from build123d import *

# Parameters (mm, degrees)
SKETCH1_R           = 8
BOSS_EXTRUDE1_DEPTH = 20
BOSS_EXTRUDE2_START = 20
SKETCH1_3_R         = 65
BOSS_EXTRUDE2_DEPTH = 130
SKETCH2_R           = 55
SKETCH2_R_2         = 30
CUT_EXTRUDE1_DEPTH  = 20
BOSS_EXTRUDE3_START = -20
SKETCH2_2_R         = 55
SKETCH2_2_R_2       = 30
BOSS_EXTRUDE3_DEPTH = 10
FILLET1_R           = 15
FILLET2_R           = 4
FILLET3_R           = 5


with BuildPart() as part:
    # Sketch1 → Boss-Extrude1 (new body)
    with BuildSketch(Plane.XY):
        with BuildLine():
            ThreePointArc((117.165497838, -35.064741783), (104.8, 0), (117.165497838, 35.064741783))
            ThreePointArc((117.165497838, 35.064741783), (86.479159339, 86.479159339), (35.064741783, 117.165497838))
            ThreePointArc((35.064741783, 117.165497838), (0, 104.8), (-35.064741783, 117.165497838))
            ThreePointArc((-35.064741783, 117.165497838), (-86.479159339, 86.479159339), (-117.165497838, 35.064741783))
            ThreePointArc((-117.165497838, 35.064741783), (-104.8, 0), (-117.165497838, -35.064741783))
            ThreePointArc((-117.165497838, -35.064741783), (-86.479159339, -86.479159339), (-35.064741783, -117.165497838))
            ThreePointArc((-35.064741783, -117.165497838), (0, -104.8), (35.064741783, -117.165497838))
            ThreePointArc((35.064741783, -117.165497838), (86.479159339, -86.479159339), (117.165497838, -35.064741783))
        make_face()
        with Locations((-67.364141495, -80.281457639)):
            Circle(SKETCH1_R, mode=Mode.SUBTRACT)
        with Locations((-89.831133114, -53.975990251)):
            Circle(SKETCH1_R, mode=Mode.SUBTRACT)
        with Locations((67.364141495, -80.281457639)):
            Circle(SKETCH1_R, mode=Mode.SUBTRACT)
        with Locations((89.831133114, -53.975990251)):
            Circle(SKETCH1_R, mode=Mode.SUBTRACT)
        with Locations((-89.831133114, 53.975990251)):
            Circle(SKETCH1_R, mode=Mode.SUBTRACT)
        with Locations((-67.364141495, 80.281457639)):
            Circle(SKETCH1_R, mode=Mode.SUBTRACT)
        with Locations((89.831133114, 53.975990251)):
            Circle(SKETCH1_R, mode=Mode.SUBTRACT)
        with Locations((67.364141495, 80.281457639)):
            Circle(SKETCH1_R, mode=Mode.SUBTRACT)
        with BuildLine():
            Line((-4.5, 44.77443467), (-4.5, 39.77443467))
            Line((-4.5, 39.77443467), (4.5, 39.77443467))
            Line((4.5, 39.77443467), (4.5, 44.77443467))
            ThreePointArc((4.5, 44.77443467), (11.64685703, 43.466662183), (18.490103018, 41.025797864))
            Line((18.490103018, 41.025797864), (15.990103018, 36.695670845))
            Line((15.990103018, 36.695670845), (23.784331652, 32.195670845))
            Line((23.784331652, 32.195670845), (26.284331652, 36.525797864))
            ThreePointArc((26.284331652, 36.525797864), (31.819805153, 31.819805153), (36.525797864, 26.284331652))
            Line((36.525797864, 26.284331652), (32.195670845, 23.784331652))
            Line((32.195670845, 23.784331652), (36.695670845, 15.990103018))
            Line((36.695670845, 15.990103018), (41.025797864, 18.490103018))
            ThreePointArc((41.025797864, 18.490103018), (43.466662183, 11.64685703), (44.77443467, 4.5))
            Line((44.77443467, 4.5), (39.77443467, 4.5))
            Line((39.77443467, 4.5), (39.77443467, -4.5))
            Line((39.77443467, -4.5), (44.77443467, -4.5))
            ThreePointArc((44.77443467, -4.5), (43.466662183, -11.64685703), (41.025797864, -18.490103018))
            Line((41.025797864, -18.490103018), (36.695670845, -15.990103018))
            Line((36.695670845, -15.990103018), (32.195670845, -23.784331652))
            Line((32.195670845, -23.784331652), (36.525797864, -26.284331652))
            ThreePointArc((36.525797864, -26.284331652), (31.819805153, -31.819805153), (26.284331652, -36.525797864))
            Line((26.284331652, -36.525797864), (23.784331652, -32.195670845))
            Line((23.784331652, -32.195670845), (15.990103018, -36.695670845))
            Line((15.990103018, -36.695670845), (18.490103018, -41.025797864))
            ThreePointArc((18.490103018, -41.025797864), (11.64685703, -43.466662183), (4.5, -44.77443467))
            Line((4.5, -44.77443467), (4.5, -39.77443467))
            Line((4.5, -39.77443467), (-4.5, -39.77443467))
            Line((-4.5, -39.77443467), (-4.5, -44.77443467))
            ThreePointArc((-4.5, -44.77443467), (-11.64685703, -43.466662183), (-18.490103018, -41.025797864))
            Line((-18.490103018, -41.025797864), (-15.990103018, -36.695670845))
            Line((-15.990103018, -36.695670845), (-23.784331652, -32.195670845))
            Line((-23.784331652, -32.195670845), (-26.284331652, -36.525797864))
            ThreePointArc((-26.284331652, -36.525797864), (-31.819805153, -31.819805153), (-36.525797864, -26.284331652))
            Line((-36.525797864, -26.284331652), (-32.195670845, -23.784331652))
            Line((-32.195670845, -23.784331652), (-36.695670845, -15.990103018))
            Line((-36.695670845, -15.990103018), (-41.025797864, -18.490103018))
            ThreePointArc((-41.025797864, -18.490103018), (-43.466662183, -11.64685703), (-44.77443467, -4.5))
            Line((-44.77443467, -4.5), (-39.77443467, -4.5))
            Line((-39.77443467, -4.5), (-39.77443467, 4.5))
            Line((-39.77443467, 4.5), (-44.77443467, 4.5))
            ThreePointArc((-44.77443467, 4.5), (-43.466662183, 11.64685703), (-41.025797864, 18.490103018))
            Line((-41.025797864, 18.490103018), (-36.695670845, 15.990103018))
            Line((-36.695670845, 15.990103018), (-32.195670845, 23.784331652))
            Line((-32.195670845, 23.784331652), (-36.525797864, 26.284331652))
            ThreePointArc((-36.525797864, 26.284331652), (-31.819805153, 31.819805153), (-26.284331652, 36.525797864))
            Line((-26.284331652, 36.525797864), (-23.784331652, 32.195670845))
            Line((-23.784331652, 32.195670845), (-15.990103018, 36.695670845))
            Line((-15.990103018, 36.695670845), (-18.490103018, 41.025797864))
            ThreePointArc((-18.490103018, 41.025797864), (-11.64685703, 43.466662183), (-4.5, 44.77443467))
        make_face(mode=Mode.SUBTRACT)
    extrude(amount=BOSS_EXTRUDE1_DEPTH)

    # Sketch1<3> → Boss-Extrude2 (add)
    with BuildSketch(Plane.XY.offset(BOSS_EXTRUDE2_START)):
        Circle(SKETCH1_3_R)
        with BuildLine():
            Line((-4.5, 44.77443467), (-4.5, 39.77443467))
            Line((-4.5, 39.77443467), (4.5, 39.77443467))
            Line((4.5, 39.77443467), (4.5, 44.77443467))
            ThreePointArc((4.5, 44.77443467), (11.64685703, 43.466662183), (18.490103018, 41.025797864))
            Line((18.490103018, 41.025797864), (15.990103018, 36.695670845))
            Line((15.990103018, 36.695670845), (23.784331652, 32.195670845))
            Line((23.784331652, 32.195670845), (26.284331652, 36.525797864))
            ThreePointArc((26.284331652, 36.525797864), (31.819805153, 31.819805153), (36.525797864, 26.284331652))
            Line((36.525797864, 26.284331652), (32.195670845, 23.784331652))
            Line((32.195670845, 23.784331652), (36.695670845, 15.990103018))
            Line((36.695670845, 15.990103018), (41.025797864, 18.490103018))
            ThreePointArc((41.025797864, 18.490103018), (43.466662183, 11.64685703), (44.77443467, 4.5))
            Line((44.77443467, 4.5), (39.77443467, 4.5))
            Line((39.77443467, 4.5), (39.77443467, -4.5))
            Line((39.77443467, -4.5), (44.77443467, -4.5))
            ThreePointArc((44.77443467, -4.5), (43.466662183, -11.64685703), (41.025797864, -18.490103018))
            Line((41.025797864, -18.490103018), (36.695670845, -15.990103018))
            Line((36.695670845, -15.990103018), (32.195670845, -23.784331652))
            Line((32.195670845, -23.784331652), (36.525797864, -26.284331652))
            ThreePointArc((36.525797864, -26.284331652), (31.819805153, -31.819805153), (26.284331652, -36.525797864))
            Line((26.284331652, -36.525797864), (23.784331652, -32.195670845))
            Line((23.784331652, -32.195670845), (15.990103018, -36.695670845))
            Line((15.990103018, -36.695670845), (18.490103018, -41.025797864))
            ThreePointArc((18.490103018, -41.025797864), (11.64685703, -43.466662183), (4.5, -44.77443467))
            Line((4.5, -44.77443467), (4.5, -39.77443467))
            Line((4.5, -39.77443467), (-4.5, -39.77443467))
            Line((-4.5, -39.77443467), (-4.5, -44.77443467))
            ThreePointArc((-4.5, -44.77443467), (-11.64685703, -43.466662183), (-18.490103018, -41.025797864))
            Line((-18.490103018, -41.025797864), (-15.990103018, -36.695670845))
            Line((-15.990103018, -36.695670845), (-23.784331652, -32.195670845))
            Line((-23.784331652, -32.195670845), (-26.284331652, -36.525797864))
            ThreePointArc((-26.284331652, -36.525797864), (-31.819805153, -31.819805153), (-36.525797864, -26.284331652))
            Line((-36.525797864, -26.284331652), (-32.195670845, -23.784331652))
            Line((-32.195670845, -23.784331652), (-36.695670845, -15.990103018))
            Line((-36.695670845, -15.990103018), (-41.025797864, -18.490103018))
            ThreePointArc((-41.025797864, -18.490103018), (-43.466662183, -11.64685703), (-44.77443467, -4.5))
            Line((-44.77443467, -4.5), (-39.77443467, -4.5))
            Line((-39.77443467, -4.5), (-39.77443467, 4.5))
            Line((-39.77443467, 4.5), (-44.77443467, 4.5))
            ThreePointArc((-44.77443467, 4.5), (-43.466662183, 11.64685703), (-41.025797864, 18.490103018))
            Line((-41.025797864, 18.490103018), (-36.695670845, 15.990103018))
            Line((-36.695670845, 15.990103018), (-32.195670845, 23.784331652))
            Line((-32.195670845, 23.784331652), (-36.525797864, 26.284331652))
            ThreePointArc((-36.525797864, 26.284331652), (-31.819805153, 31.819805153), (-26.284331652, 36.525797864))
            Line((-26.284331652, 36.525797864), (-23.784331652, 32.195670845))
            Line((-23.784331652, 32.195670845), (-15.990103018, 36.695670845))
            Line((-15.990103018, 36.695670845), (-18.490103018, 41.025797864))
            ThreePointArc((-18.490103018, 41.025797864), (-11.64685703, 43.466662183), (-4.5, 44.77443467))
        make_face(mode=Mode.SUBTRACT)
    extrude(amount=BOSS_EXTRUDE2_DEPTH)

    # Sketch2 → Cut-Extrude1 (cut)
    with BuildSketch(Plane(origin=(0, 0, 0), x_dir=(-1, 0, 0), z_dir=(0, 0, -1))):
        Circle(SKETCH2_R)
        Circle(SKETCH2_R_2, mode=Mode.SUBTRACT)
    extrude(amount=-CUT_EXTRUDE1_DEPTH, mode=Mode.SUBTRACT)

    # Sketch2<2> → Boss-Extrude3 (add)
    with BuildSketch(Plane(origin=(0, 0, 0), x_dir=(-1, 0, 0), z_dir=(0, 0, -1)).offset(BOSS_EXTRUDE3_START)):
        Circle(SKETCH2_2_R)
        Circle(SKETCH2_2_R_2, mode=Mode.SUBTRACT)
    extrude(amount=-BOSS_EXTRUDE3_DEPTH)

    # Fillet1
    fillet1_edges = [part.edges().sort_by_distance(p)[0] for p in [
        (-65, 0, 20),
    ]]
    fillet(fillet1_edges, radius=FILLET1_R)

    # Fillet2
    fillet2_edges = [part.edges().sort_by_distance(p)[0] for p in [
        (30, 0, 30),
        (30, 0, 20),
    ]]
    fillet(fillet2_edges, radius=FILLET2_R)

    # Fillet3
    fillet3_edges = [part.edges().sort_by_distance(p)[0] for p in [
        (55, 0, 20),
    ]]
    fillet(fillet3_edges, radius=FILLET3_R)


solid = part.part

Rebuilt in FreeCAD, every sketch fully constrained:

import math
import FreeCAD as App
import Part
import Sketcher

V = App.Vector
Q = App.Units.Quantity


def edges_at(feature, points):
    """Names of the edges that pass closest to the given points."""
    edges = feature.Shape.Edges
    near = lambda p: min(range(len(edges)), key=lambda i: edges[i].distToShape(Part.Vertex(*p))[0])
    return sorted({f"Edge{near(p) + 1}" for p in points})

doc = App.newDocument("Part")
params = doc.addObject("Spreadsheet::Sheet", "Params")
for row, (alias, value) in enumerate([
    ("sketch1_diameter", "16 mm"),
    ("sketch1_radius", "45 mm"),
    ("sketch1_radius2", "122.3 mm"),
    ("sketch1_width", "9 mm"),
    ("sketch1_width2", "5 mm"),
    ("pad1_length", "20 mm"),
    ("sketch2_diameter", "130 mm"),
    ("sketch2_radius", "45 mm"),
    ("sketch2_width", "9 mm"),
    ("sketch2_width2", "5 mm"),
    ("sketch2_length", "5 mm"),
    ("pad2_length", "130 mm"),
    ("sketch3_diameter", "110 mm"),
    ("sketch3_diameter2", "60 mm"),
    ("pocket1_length", "20 mm"),
    ("sketch4_diameter", "110 mm"),
    ("sketch4_diameter2", "60 mm"),
    ("pad3_length", "10 mm"),
    ("fillet_radius", "15 mm"),
    ("fillet2_radius", "4 mm"),
    ("fillet3_radius", "5 mm"),
], start=1):
    params.set(f"A{row}", alias)
    params.set(f"B{row}", "=" + value)
    params.setAlias(f"B{row}", alias)

body = doc.addObject("PartDesign::Body", "Body")

sketch1 = body.newObject("Sketcher::SketchObject", "Sketch")
sketch1.AttachmentSupport = (doc.getObject("XY_Plane"), [""])
sketch1.MapMode = "FlatFace"
sketch1.addGeometry(Part.ArcOfCircle(Part.Circle(V(161, 0, 0), V(0, 0, 1), 56), math.radians(141), math.radians(219)), False)
sketch1.addGeometry(Part.ArcOfCircle(Part.Circle(V(0, 0, 0), V(0, 0, 1), 122), math.radians(17), math.radians(73)), False)
sketch1.addGeometry(Part.ArcOfCircle(Part.Circle(V(0, 161, 0), V(0, 0, 1), 56), math.radians(-129), math.radians(-51)), False)
sketch1.addGeometry(Part.ArcOfCircle(Part.Circle(V(0, 0, 0), V(0, 0, 1), 122), math.radians(107), math.radians(163)), False)
sketch1.addGeometry(Part.ArcOfCircle(Part.Circle(V(-161, 0, 0), V(0, 0, 1), 56), math.radians(-39), math.radians(39)), False)
sketch1.addGeometry(Part.ArcOfCircle(Part.Circle(V(0, 0, 0), V(0, 0, 1), 122), math.radians(-163), math.radians(-107)), False)
sketch1.addGeometry(Part.ArcOfCircle(Part.Circle(V(0, -161, 0), V(0, 0, 1), 56), math.radians(51), math.radians(129)), False)
sketch1.addGeometry(Part.ArcOfCircle(Part.Circle(V(0, 0, 0), V(0, 0, 1), 122), math.radians(-73), math.radians(-17)), False)
sketch1.addGeometry(Part.Circle(V(-67, -80, 0), V(0, 0, 1), 8), False)
sketch1.addGeometry(Part.Circle(V(-90, -54, 0), V(0, 0, 1), 8), False)
sketch1.addGeometry(Part.Circle(V(67, -80, 0), V(0, 0, 1), 8), False)
sketch1.addGeometry(Part.Circle(V(90, -54, 0), V(0, 0, 1), 8), False)
sketch1.addGeometry(Part.ArcOfCircle(Part.Circle(V(0, 0, 0), V(0, 0, 1), 45), math.radians(95.74), math.radians(114.26)), False)
sketch1.addGeometry(Part.LineSegment(V(-4, 45, 0), V(-4, 40, 0)), False)
sketch1.addGeometry(Part.LineSegment(V(-4, 40, 0), V(4, 40, 0)), False)
sketch1.addGeometry(Part.LineSegment(V(4, 40, 0), V(4, 45, 0)), False)
sketch1.addGeometry(Part.ArcOfCircle(Part.Circle(V(0, 0, 0), V(0, 0, 1), 45), math.radians(65.74), math.radians(84.26)), False)
sketch1.addGeometry(Part.LineSegment(V(18, 41, 0), V(16, 37, 0)), False)
sketch1.addGeometry(Part.LineSegment(V(16, 37, 0), V(24, 32, 0)), False)
sketch1.addGeometry(Part.LineSegment(V(24, 32, 0), V(26, 37, 0)), False)
sketch1.addGeometry(Part.ArcOfCircle(Part.Circle(V(0, 0, 0), V(0, 0, 1), 45), math.radians(35.74), math.radians(54.26)), False)
sketch1.addGeometry(Part.LineSegment(V(37, 26, 0), V(32, 24, 0)), False)
sketch1.addGeometry(Part.LineSegment(V(32, 24, 0), V(37, 16, 0)), False)
sketch1.addGeometry(Part.LineSegment(V(37, 16, 0), V(41, 18, 0)), False)
sketch1.addGeometry(Part.ArcOfCircle(Part.Circle(V(0, 0, 0), V(0, 0, 1), 45), math.radians(5.74), math.radians(24.26)), False)
sketch1.addGeometry(Part.LineSegment(V(45, 4, 0), V(40, 4, 0)), False)
sketch1.addGeometry(Part.LineSegment(V(40, 4, 0), V(40, -4, 0)), False)
sketch1.addGeometry(Part.LineSegment(V(40, -4, 0), V(45, -4, 0)), False)
sketch1.addGeometry(Part.ArcOfCircle(Part.Circle(V(0, 0, 0), V(0, 0, 1), 45), math.radians(-24.26), math.radians(-5.74)), False)
sketch1.addGeometry(Part.LineSegment(V(41, -18, 0), V(37, -16, 0)), False)
sketch1.addGeometry(Part.LineSegment(V(37, -16, 0), V(32, -24, 0)), False)
sketch1.addGeometry(Part.LineSegment(V(32, -24, 0), V(37, -26, 0)), False)
sketch1.addGeometry(Part.ArcOfCircle(Part.Circle(V(0, 0, 0), V(0, 0, 1), 45), math.radians(-54.26), math.radians(-35.74)), False)
sketch1.addGeometry(Part.LineSegment(V(26, -37, 0), V(24, -32, 0)), False)
sketch1.addGeometry(Part.LineSegment(V(24, -32, 0), V(16, -37, 0)), False)
sketch1.addGeometry(Part.LineSegment(V(16, -37, 0), V(18, -41, 0)), False)
sketch1.addGeometry(Part.ArcOfCircle(Part.Circle(V(0, 0, 0), V(0, 0, 1), 45), math.radians(-84.26), math.radians(-65.74)), False)
sketch1.addGeometry(Part.LineSegment(V(4, -45, 0), V(4, -40, 0)), False)
sketch1.addGeometry(Part.LineSegment(V(4, -40, 0), V(-4, -40, 0)), False)
sketch1.addGeometry(Part.LineSegment(V(-4, -40, 0), V(-4, -45, 0)), False)
sketch1.addGeometry(Part.ArcOfCircle(Part.Circle(V(0, 0, 0), V(0, 0, 1), 45), math.radians(-114.26), math.radians(-95.74)), False)
sketch1.addGeometry(Part.LineSegment(V(-18, -41, 0), V(-16, -37, 0)), False)
sketch1.addGeometry(Part.LineSegment(V(-16, -37, 0), V(-24, -32, 0)), False)
sketch1.addGeometry(Part.LineSegment(V(-24, -32, 0), V(-26, -37, 0)), False)
sketch1.addGeometry(Part.ArcOfCircle(Part.Circle(V(0, 0, 0), V(0, 0, 1), 45), math.radians(-144.26), math.radians(-125.74)), False)
sketch1.addGeometry(Part.LineSegment(V(-37, -26, 0), V(-32, -24, 0)), False)
sketch1.addGeometry(Part.LineSegment(V(-32, -24, 0), V(-37, -16, 0)), False)
sketch1.addGeometry(Part.LineSegment(V(-37, -16, 0), V(-41, -18, 0)), False)
sketch1.addGeometry(Part.ArcOfCircle(Part.Circle(V(0, 0, 0), V(0, 0, 1), 45), math.radians(-174.26), math.radians(-155.74)), False)
sketch1.addGeometry(Part.LineSegment(V(-45, -4, 0), V(-40, -4, 0)), False)
sketch1.addGeometry(Part.LineSegment(V(-40, -4, 0), V(-40, 4, 0)), False)
sketch1.addGeometry(Part.LineSegment(V(-40, 4, 0), V(-45, 4, 0)), False)
sketch1.addGeometry(Part.ArcOfCircle(Part.Circle(V(0, 0, 0), V(0, 0, 1), 45), math.radians(155.74), math.radians(174.26)), False)
sketch1.addGeometry(Part.LineSegment(V(-41, 18, 0), V(-37, 16, 0)), False)
sketch1.addGeometry(Part.LineSegment(V(-37, 16, 0), V(-32, 24, 0)), False)
sketch1.addGeometry(Part.LineSegment(V(-32, 24, 0), V(-37, 26, 0)), False)
sketch1.addGeometry(Part.ArcOfCircle(Part.Circle(V(0, 0, 0), V(0, 0, 1), 45), math.radians(125.74), math.radians(144.26)), False)
sketch1.addGeometry(Part.LineSegment(V(-26, 37, 0), V(-24, 32, 0)), False)
sketch1.addGeometry(Part.LineSegment(V(-24, 32, 0), V(-16, 37, 0)), False)
sketch1.addGeometry(Part.LineSegment(V(-16, 37, 0), V(-18, 41, 0)), False)
sketch1.addGeometry(Part.Circle(V(-90, 54, 0), V(0, 0, 1), 8), False)
sketch1.addGeometry(Part.Circle(V(-67, 80, 0), V(0, 0, 1), 8), False)
sketch1.addGeometry(Part.Circle(V(90, 54, 0), V(0, 0, 1), 8), False)
sketch1.addGeometry(Part.Circle(V(67, 80, 0), V(0, 0, 1), 8), False)
sketch1.addConstraint(Sketcher.Constraint("Coincident", 0, 1, 1, 1))
sketch1.addConstraint(Sketcher.Constraint("Coincident", 1, 2, 2, 2))
sketch1.addConstraint(Sketcher.Constraint("Coincident", 2, 1, 3, 1))
sketch1.addConstraint(Sketcher.Constraint("Coincident", 3, 2, 4, 2))
sketch1.addConstraint(Sketcher.Constraint("Coincident", 4, 1, 5, 1))
sketch1.addConstraint(Sketcher.Constraint("Coincident", 5, 2, 6, 2))
sketch1.addConstraint(Sketcher.Constraint("Coincident", 6, 1, 7, 1))
sketch1.addConstraint(Sketcher.Constraint("Coincident", 7, 2, 0, 2))
sketch1.addConstraint(Sketcher.Constraint("Coincident", 12, 1, 13, 1))
sketch1.addConstraint(Sketcher.Constraint("Coincident", 13, 2, 14, 1))
sketch1.addConstraint(Sketcher.Constraint("Coincident", 14, 2, 15, 1))
sketch1.addConstraint(Sketcher.Constraint("Coincident", 15, 2, 16, 2))
sketch1.addConstraint(Sketcher.Constraint("Coincident", 16, 1, 17, 1))
sketch1.addConstraint(Sketcher.Constraint("Coincident", 17, 2, 18, 1))
sketch1.addConstraint(Sketcher.Constraint("Coincident", 18, 2, 19, 1))
sketch1.addConstraint(Sketcher.Constraint("Coincident", 19, 2, 20, 2))
sketch1.addConstraint(Sketcher.Constraint("Coincident", 20, 1, 21, 1))
sketch1.addConstraint(Sketcher.Constraint("Coincident", 21, 2, 22, 1))
sketch1.addConstraint(Sketcher.Constraint("Coincident", 22, 2, 23, 1))
sketch1.addConstraint(Sketcher.Constraint("Coincident", 23, 2, 24, 2))
sketch1.addConstraint(Sketcher.Constraint("Coincident", 24, 1, 25, 1))
sketch1.addConstraint(Sketcher.Constraint("Coincident", 25, 2, 26, 1))
sketch1.addConstraint(Sketcher.Constraint("Coincident", 26, 2, 27, 1))
sketch1.addConstraint(Sketcher.Constraint("Coincident", 27, 2, 28, 2))
sketch1.addConstraint(Sketcher.Constraint("Coincident", 28, 1, 29, 1))
sketch1.addConstraint(Sketcher.Constraint("Coincident", 29, 2, 30, 1))
sketch1.addConstraint(Sketcher.Constraint("Coincident", 30, 2, 31, 1))
sketch1.addConstraint(Sketcher.Constraint("Coincident", 31, 2, 32, 2))
sketch1.addConstraint(Sketcher.Constraint("Coincident", 32, 1, 33, 1))
sketch1.addConstraint(Sketcher.Constraint("Coincident", 33, 2, 34, 1))
sketch1.addConstraint(Sketcher.Constraint("Coincident", 34, 2, 35, 1))
sketch1.addConstraint(Sketcher.Constraint("Coincident", 35, 2, 36, 2))
sketch1.addConstraint(Sketcher.Constraint("Coincident", 36, 1, 37, 1))
sketch1.addConstraint(Sketcher.Constraint("Coincident", 37, 2, 38, 1))
sketch1.addConstraint(Sketcher.Constraint("Coincident", 38, 2, 39, 1))
sketch1.addConstraint(Sketcher.Constraint("Coincident", 39, 2, 40, 2))
sketch1.addConstraint(Sketcher.Constraint("Coincident", 40, 1, 41, 1))
sketch1.addConstraint(Sketcher.Constraint("Coincident", 41, 2, 42, 1))
sketch1.addConstraint(Sketcher.Constraint("Coincident", 42, 2, 43, 1))
sketch1.addConstraint(Sketcher.Constraint("Coincident", 43, 2, 44, 2))
sketch1.addConstraint(Sketcher.Constraint("Coincident", 44, 1, 45, 1))
sketch1.addConstraint(Sketcher.Constraint("Coincident", 45, 2, 46, 1))
sketch1.addConstraint(Sketcher.Constraint("Coincident", 46, 2, 47, 1))
sketch1.addConstraint(Sketcher.Constraint("Coincident", 47, 2, 48, 2))
sketch1.addConstraint(Sketcher.Constraint("Coincident", 48, 1, 49, 1))
sketch1.addConstraint(Sketcher.Constraint("Coincident", 49, 2, 50, 1))
sketch1.addConstraint(Sketcher.Constraint("Coincident", 50, 2, 51, 1))
sketch1.addConstraint(Sketcher.Constraint("Coincident", 51, 2, 52, 2))
sketch1.addConstraint(Sketcher.Constraint("Coincident", 52, 1, 53, 1))
sketch1.addConstraint(Sketcher.Constraint("Coincident", 53, 2, 54, 1))
sketch1.addConstraint(Sketcher.Constraint("Coincident", 54, 2, 55, 1))
sketch1.addConstraint(Sketcher.Constraint("Coincident", 55, 2, 56, 2))
sketch1.addConstraint(Sketcher.Constraint("Coincident", 56, 1, 57, 1))
sketch1.addConstraint(Sketcher.Constraint("Coincident", 57, 2, 58, 1))
sketch1.addConstraint(Sketcher.Constraint("Coincident", 58, 2, 59, 1))
sketch1.addConstraint(Sketcher.Constraint("Coincident", 59, 2, 12, 2))
sketch1.addConstraint(Sketcher.Constraint("Vertical", 13))
sketch1.addConstraint(Sketcher.Constraint("Horizontal", 14))
sketch1.addConstraint(Sketcher.Constraint("Vertical", 15))
sketch1.addConstraint(Sketcher.Constraint("Horizontal", 25))
sketch1.addConstraint(Sketcher.Constraint("Vertical", 26))
sketch1.addConstraint(Sketcher.Constraint("Horizontal", 27))
sketch1.addConstraint(Sketcher.Constraint("Vertical", 37))
sketch1.addConstraint(Sketcher.Constraint("Horizontal", 38))
sketch1.addConstraint(Sketcher.Constraint("Vertical", 39))
sketch1.addConstraint(Sketcher.Constraint("Horizontal", 49))
sketch1.addConstraint(Sketcher.Constraint("Vertical", 50))
sketch1.addConstraint(Sketcher.Constraint("Horizontal", 51))
sketch1.addConstraint(Sketcher.Constraint("Coincident", 1, 3, -1, 1))
sketch1.addConstraint(Sketcher.Constraint("Coincident", 3, 3, -1, 1))
sketch1.addConstraint(Sketcher.Constraint("Coincident", 5, 3, -1, 1))
sketch1.addConstraint(Sketcher.Constraint("Coincident", 7, 3, -1, 1))
sketch1.addConstraint(Sketcher.Constraint("Coincident", 12, 3, -1, 1))
sketch1.addConstraint(Sketcher.Constraint("Coincident", 16, 3, -1, 1))
sketch1.addConstraint(Sketcher.Constraint("Coincident", 20, 3, -1, 1))
sketch1.addConstraint(Sketcher.Constraint("Coincident", 24, 3, -1, 1))
sketch1.addConstraint(Sketcher.Constraint("Coincident", 28, 3, -1, 1))
sketch1.addConstraint(Sketcher.Constraint("Coincident", 32, 3, -1, 1))
sketch1.addConstraint(Sketcher.Constraint("Coincident", 36, 3, -1, 1))
sketch1.addConstraint(Sketcher.Constraint("Coincident", 40, 3, -1, 1))
sketch1.addConstraint(Sketcher.Constraint("Coincident", 44, 3, -1, 1))
sketch1.addConstraint(Sketcher.Constraint("Coincident", 48, 3, -1, 1))
sketch1.addConstraint(Sketcher.Constraint("Coincident", 52, 3, -1, 1))
sketch1.addConstraint(Sketcher.Constraint("Coincident", 56, 3, -1, 1))
sketch1.addConstraint(Sketcher.Constraint("Equal", 0, 2))
sketch1.addConstraint(Sketcher.Constraint("Equal", 1, 3))
sketch1.addConstraint(Sketcher.Constraint("Equal", 2, 4))
sketch1.addConstraint(Sketcher.Constraint("Equal", 3, 5))
sketch1.addConstraint(Sketcher.Constraint("Equal", 4, 6))
sketch1.addConstraint(Sketcher.Constraint("Equal", 5, 7))
sketch1.addConstraint(Sketcher.Constraint("Equal", 8, 9))
sketch1.addConstraint(Sketcher.Constraint("Equal", 9, 10))
sketch1.addConstraint(Sketcher.Constraint("Equal", 10, 11))
sketch1.addConstraint(Sketcher.Constraint("Equal", 12, 16))
sketch1.addConstraint(Sketcher.Constraint("Equal", 16, 20))
sketch1.addConstraint(Sketcher.Constraint("Equal", 20, 24))
sketch1.addConstraint(Sketcher.Constraint("Equal", 24, 28))
sketch1.addConstraint(Sketcher.Constraint("Equal", 28, 32))
sketch1.addConstraint(Sketcher.Constraint("Equal", 32, 36))
sketch1.addConstraint(Sketcher.Constraint("Equal", 36, 40))
sketch1.addConstraint(Sketcher.Constraint("Equal", 40, 44))
sketch1.addConstraint(Sketcher.Constraint("Equal", 44, 48))
sketch1.addConstraint(Sketcher.Constraint("Equal", 48, 52))
sketch1.addConstraint(Sketcher.Constraint("Equal", 52, 56))
sketch1.addConstraint(Sketcher.Constraint("Equal", 11, 60))
sketch1.addConstraint(Sketcher.Constraint("Equal", 60, 61))
sketch1.addConstraint(Sketcher.Constraint("Equal", 61, 62))
sketch1.addConstraint(Sketcher.Constraint("Equal", 62, 63))
sketch1.addConstraint(Sketcher.Constraint("Symmetric", 0, 3, 4, 3, -1, 1))
sketch1.addConstraint(Sketcher.Constraint("Symmetric", 2, 3, 6, 3, -1, 1))
sketch1.addConstraint(Sketcher.Constraint("Symmetric", 11, 3, 60, 3, -1, 1))
sketch1.addConstraint(Sketcher.Constraint("Symmetric", 10, 3, 61, 3, -1, 1))
sketch1.addConstraint(Sketcher.Constraint("Symmetric", 9, 3, 62, 3, -1, 1))
sketch1.addConstraint(Sketcher.Constraint("Symmetric", 8, 3, 63, 3, -1, 1))
sketch1.addConstraint(Sketcher.Constraint("Symmetric", 13, 2, 37, 2, -1, 1))
sketch1.addConstraint(Sketcher.Constraint("Symmetric", 17, 2, 41, 2, -1, 1))
sketch1.addConstraint(Sketcher.Constraint("Symmetric", 18, 2, 42, 2, -1, 1))
sketch1.addConstraint(Sketcher.Constraint("Symmetric", 21, 2, 45, 2, -1, 1))
sketch1.addConstraint(Sketcher.Constraint("Symmetric", 22, 2, 46, 2, -1, 1))
sketch1.addConstraint(Sketcher.Constraint("Symmetric", 25, 2, 49, 2, -1, 1))
sketch1.addConstraint(Sketcher.Constraint("Symmetric", 29, 2, 53, 2, -1, 1))
sketch1.addConstraint(Sketcher.Constraint("Symmetric", 30, 2, 54, 2, -1, 1))
sketch1.addConstraint(Sketcher.Constraint("Symmetric", 33, 2, 57, 2, -1, 1))
sketch1.addConstraint(Sketcher.Constraint("Symmetric", 34, 2, 58, 2, -1, 1))
sketch1.addConstraint(Sketcher.Constraint("Symmetric", 8, 3, 10, 3, -2))
sketch1.addConstraint(Sketcher.Constraint("Symmetric", 9, 3, 11, 3, -2))
sketch1.addConstraint(Sketcher.Constraint("Symmetric", 34, 2, 41, 2, -2))
sketch1.addConstraint(Sketcher.Constraint("Symmetric", 33, 2, 42, 2, -2))
sketch1.addConstraint(Sketcher.Constraint("Symmetric", 30, 2, 45, 2, -2))
sketch1.addConstraint(Sketcher.Constraint("Symmetric", 29, 2, 46, 2, -2))
sketch1.addConstraint(Sketcher.Constraint("PointOnObject", 0, 3, -1))
sketch1.addConstraint(Sketcher.Constraint("PointOnObject", 2, 3, -2))
sketch1.addConstraint(Sketcher.Constraint("Perpendicular", 17, 18))
sketch1.addConstraint(Sketcher.Constraint("Perpendicular", 18, 19))
sketch1.addConstraint(Sketcher.Constraint("Perpendicular", 21, 22))
sketch1.addConstraint(Sketcher.Constraint("Perpendicular", 22, 23))
sketch1.addConstraint(Sketcher.Constraint("Perpendicular", 19, 29))
sketch1.addConstraint(Sketcher.Constraint("Perpendicular", 29, 30))
sketch1.addConstraint(Sketcher.Constraint("Perpendicular", 30, 31))
sketch1.addConstraint(Sketcher.Constraint("Perpendicular", 23, 33))
sketch1.addConstraint(Sketcher.Constraint("Perpendicular", 34, 35))
sketch1.addConstraint(Sketcher.Constraint("Perpendicular", 31, 41))
sketch1.addConstraint(Sketcher.Constraint("Perpendicular", 42, 43))
sketch1.addConstraint(Sketcher.Constraint("Perpendicular", 35, 45))
sketch1.addConstraint(Sketcher.Constraint("Perpendicular", 46, 47))
sketch1.addConstraint(Sketcher.Constraint("Perpendicular", 43, 53))
sketch1.addConstraint(Sketcher.Constraint("Perpendicular", 54, 55))
sketch1.addConstraint(Sketcher.Constraint("Perpendicular", 47, 57))
sketch1.addConstraint(Sketcher.Constraint("Perpendicular", 58, 59))
sketch1.addConstraint(Sketcher.Constraint("Horizontal", 12, 1, 15, 2))
sketch1.addConstraint(Sketcher.Constraint("Horizontal", 36, 1, 39, 2))
sketch1.addConstraint(Sketcher.Constraint("Horizontal", 27, 2, 48, 1))
sketch1.addConstraint(Sketcher.Constraint("Horizontal", 25, 2, 50, 2))
sketch1.addConstraint(Sketcher.Constraint("Equal", 51, 13))
sketch1.addConstraint(Sketcher.Constraint("Equal", 38, 26))
sketch1.addConstraint(Sketcher.Constraint("Equal", 17, 19))
sketch1.addConstraint(Sketcher.Constraint("Equal", 19, 21))
sketch1.addConstraint(Sketcher.Constraint("Equal", 18, 22))
sketch1.addConstraint(Sketcher.Constraint("Equal", 21, 23))
sketch1.addConstraint(Sketcher.Constraint("Diameter", 8, 16.0))
sketch1.addConstraint(Sketcher.Constraint("Radius", 12, 45.0))
sketch1.addConstraint(Sketcher.Constraint("Radius", 1, 122.3))
sketch1.addConstraint(Sketcher.Constraint("DistanceX", 14, 1, 14, 2, 9.0))
sketch1.addConstraint(Sketcher.Constraint("DistanceX", 25, 2, 25, 1, 5.0))
sketch1.addConstraint(Sketcher.Constraint("Angle", 17, Q("-120 deg")))
sketch1.addConstraint(Sketcher.Constraint("Distance", 17, 5.0))
sketch1.addConstraint(Sketcher.Constraint("Distance", 18, 9.0))
sketch1.addConstraint(Sketcher.Constraint("Radius", 0, 55.899151))
sketch1.addConstraint(Sketcher.Constraint("DistanceX", -1, 1, 0, 3, 160.699151))
sketch1.addConstraint(Sketcher.Constraint("DistanceY", -1, 1, 2, 3, 160.699151))
sketch1.addConstraint(Sketcher.Constraint("DistanceX", 8, 3, -1, 1, 67.364141))
sketch1.addConstraint(Sketcher.Constraint("DistanceY", 9, 3, -1, 1, 53.97599))
sketch1.addConstraint(Sketcher.Constraint("DistanceY", 8, 3, -1, 1, 80.281458))
sketch1.addConstraint(Sketcher.Constraint("DistanceX", 9, 3, -1, 1, 89.831133))
sketch1.setExpression("Constraints[159]", "Params.sketch1_diameter")
sketch1.setExpression("Constraints[160]", "Params.sketch1_radius")
sketch1.setExpression("Constraints[161]", "Params.sketch1_radius2")
sketch1.setExpression("Constraints[162]", "Params.sketch1_width")
sketch1.setExpression("Constraints[163]", "Params.sketch1_width2")
pad1 = body.newObject("PartDesign::Pad", "Pad")
pad1.Profile = sketch1
pad1.setExpression("Length", "Params.pad1_length")

sketch2 = body.newObject("Sketcher::SketchObject", "Sketch001")
sketch2.AttachmentSupport = (doc.getObject("XY_Plane"), [""])
sketch2.MapMode = "FlatFace"
sketch2.AttachmentOffset = App.Placement(V(0, 0, 20), App.Rotation())
sketch2.addGeometry(Part.Circle(V(0, 0, 0), V(0, 0, 1), 65), False)
sketch2.addGeometry(Part.ArcOfCircle(Part.Circle(V(0, 0, 0), V(0, 0, 1), 45), math.radians(95.74), math.radians(114.26)), False)
sketch2.addGeometry(Part.LineSegment(V(-4, 45, 0), V(-4, 40, 0)), False)
sketch2.addGeometry(Part.LineSegment(V(-4, 40, 0), V(4, 40, 0)), False)
sketch2.addGeometry(Part.LineSegment(V(4, 40, 0), V(4, 45, 0)), False)
sketch2.addGeometry(Part.ArcOfCircle(Part.Circle(V(0, 0, 0), V(0, 0, 1), 45), math.radians(65.74), math.radians(84.26)), False)
sketch2.addGeometry(Part.LineSegment(V(18, 41, 0), V(16, 37, 0)), False)
sketch2.addGeometry(Part.LineSegment(V(16, 37, 0), V(24, 32, 0)), False)
sketch2.addGeometry(Part.LineSegment(V(24, 32, 0), V(26, 37, 0)), False)
sketch2.addGeometry(Part.ArcOfCircle(Part.Circle(V(0, 0, 0), V(0, 0, 1), 45), math.radians(35.74), math.radians(54.26)), False)
sketch2.addGeometry(Part.LineSegment(V(37, 26, 0), V(32, 24, 0)), False)
sketch2.addGeometry(Part.LineSegment(V(32, 24, 0), V(37, 16, 0)), False)
sketch2.addGeometry(Part.LineSegment(V(37, 16, 0), V(41, 18, 0)), False)
sketch2.addGeometry(Part.ArcOfCircle(Part.Circle(V(0, 0, 0), V(0, 0, 1), 45), math.radians(5.74), math.radians(24.26)), False)
sketch2.addGeometry(Part.LineSegment(V(45, 4, 0), V(40, 4, 0)), False)
sketch2.addGeometry(Part.LineSegment(V(40, 4, 0), V(40, -4, 0)), False)
sketch2.addGeometry(Part.LineSegment(V(40, -4, 0), V(45, -4, 0)), False)
sketch2.addGeometry(Part.ArcOfCircle(Part.Circle(V(0, 0, 0), V(0, 0, 1), 45), math.radians(-24.26), math.radians(-5.74)), False)
sketch2.addGeometry(Part.LineSegment(V(41, -18, 0), V(37, -16, 0)), False)
sketch2.addGeometry(Part.LineSegment(V(37, -16, 0), V(32, -24, 0)), False)
sketch2.addGeometry(Part.LineSegment(V(32, -24, 0), V(37, -26, 0)), False)
sketch2.addGeometry(Part.ArcOfCircle(Part.Circle(V(0, 0, 0), V(0, 0, 1), 45), math.radians(-54.26), math.radians(-35.74)), False)
sketch2.addGeometry(Part.LineSegment(V(26, -37, 0), V(24, -32, 0)), False)
sketch2.addGeometry(Part.LineSegment(V(24, -32, 0), V(16, -37, 0)), False)
sketch2.addGeometry(Part.LineSegment(V(16, -37, 0), V(18, -41, 0)), False)
sketch2.addGeometry(Part.ArcOfCircle(Part.Circle(V(0, 0, 0), V(0, 0, 1), 45), math.radians(-84.26), math.radians(-65.74)), False)
sketch2.addGeometry(Part.LineSegment(V(4, -45, 0), V(4, -40, 0)), False)
sketch2.addGeometry(Part.LineSegment(V(4, -40, 0), V(-4, -40, 0)), False)
sketch2.addGeometry(Part.LineSegment(V(-4, -40, 0), V(-4, -45, 0)), False)
sketch2.addGeometry(Part.ArcOfCircle(Part.Circle(V(0, 0, 0), V(0, 0, 1), 45), math.radians(-114.26), math.radians(-95.74)), False)
sketch2.addGeometry(Part.LineSegment(V(-18, -41, 0), V(-16, -37, 0)), False)
sketch2.addGeometry(Part.LineSegment(V(-16, -37, 0), V(-24, -32, 0)), False)
sketch2.addGeometry(Part.LineSegment(V(-24, -32, 0), V(-26, -37, 0)), False)
sketch2.addGeometry(Part.ArcOfCircle(Part.Circle(V(0, 0, 0), V(0, 0, 1), 45), math.radians(-144.26), math.radians(-125.74)), False)
sketch2.addGeometry(Part.LineSegment(V(-37, -26, 0), V(-32, -24, 0)), False)
sketch2.addGeometry(Part.LineSegment(V(-32, -24, 0), V(-37, -16, 0)), False)
sketch2.addGeometry(Part.LineSegment(V(-37, -16, 0), V(-41, -18, 0)), False)
sketch2.addGeometry(Part.ArcOfCircle(Part.Circle(V(0, 0, 0), V(0, 0, 1), 45), math.radians(-174.26), math.radians(-155.74)), False)
sketch2.addGeometry(Part.LineSegment(V(-45, -4, 0), V(-40, -4, 0)), False)
sketch2.addGeometry(Part.LineSegment(V(-40, -4, 0), V(-40, 4, 0)), False)
sketch2.addGeometry(Part.LineSegment(V(-40, 4, 0), V(-45, 4, 0)), False)
sketch2.addGeometry(Part.ArcOfCircle(Part.Circle(V(0, 0, 0), V(0, 0, 1), 45), math.radians(155.74), math.radians(174.26)), False)
sketch2.addGeometry(Part.LineSegment(V(-41, 18, 0), V(-37, 16, 0)), False)
sketch2.addGeometry(Part.LineSegment(V(-37, 16, 0), V(-32, 24, 0)), False)
sketch2.addGeometry(Part.LineSegment(V(-32, 24, 0), V(-37, 26, 0)), False)
sketch2.addGeometry(Part.ArcOfCircle(Part.Circle(V(0, 0, 0), V(0, 0, 1), 45), math.radians(125.74), math.radians(144.26)), False)
sketch2.addGeometry(Part.LineSegment(V(-26, 37, 0), V(-24, 32, 0)), False)
sketch2.addGeometry(Part.LineSegment(V(-24, 32, 0), V(-16, 37, 0)), False)
sketch2.addGeometry(Part.LineSegment(V(-16, 37, 0), V(-18, 41, 0)), False)
sketch2.addConstraint(Sketcher.Constraint("Coincident", 1, 1, 2, 1))
sketch2.addConstraint(Sketcher.Constraint("Coincident", 2, 2, 3, 1))
sketch2.addConstraint(Sketcher.Constraint("Coincident", 3, 2, 4, 1))
sketch2.addConstraint(Sketcher.Constraint("Coincident", 4, 2, 5, 2))
sketch2.addConstraint(Sketcher.Constraint("Coincident", 5, 1, 6, 1))
sketch2.addConstraint(Sketcher.Constraint("Coincident", 6, 2, 7, 1))
sketch2.addConstraint(Sketcher.Constraint("Coincident", 7, 2, 8, 1))
sketch2.addConstraint(Sketcher.Constraint("Coincident", 8, 2, 9, 2))
sketch2.addConstraint(Sketcher.Constraint("Coincident", 9, 1, 10, 1))
sketch2.addConstraint(Sketcher.Constraint("Coincident", 10, 2, 11, 1))
sketch2.addConstraint(Sketcher.Constraint("Coincident", 11, 2, 12, 1))
sketch2.addConstraint(Sketcher.Constraint("Coincident", 12, 2, 13, 2))
sketch2.addConstraint(Sketcher.Constraint("Coincident", 13, 1, 14, 1))
sketch2.addConstraint(Sketcher.Constraint("Coincident", 14, 2, 15, 1))
sketch2.addConstraint(Sketcher.Constraint("Coincident", 15, 2, 16, 1))
sketch2.addConstraint(Sketcher.Constraint("Coincident", 16, 2, 17, 2))
sketch2.addConstraint(Sketcher.Constraint("Coincident", 17, 1, 18, 1))
sketch2.addConstraint(Sketcher.Constraint("Coincident", 18, 2, 19, 1))
sketch2.addConstraint(Sketcher.Constraint("Coincident", 19, 2, 20, 1))
sketch2.addConstraint(Sketcher.Constraint("Coincident", 20, 2, 21, 2))
sketch2.addConstraint(Sketcher.Constraint("Coincident", 21, 1, 22, 1))
sketch2.addConstraint(Sketcher.Constraint("Coincident", 22, 2, 23, 1))
sketch2.addConstraint(Sketcher.Constraint("Coincident", 23, 2, 24, 1))
sketch2.addConstraint(Sketcher.Constraint("Coincident", 24, 2, 25, 2))
sketch2.addConstraint(Sketcher.Constraint("Coincident", 25, 1, 26, 1))
sketch2.addConstraint(Sketcher.Constraint("Coincident", 26, 2, 27, 1))
sketch2.addConstraint(Sketcher.Constraint("Coincident", 27, 2, 28, 1))
sketch2.addConstraint(Sketcher.Constraint("Coincident", 28, 2, 29, 2))
sketch2.addConstraint(Sketcher.Constraint("Coincident", 29, 1, 30, 1))
sketch2.addConstraint(Sketcher.Constraint("Coincident", 30, 2, 31, 1))
sketch2.addConstraint(Sketcher.Constraint("Coincident", 31, 2, 32, 1))
sketch2.addConstraint(Sketcher.Constraint("Coincident", 32, 2, 33, 2))
sketch2.addConstraint(Sketcher.Constraint("Coincident", 33, 1, 34, 1))
sketch2.addConstraint(Sketcher.Constraint("Coincident", 34, 2, 35, 1))
sketch2.addConstraint(Sketcher.Constraint("Coincident", 35, 2, 36, 1))
sketch2.addConstraint(Sketcher.Constraint("Coincident", 36, 2, 37, 2))
sketch2.addConstraint(Sketcher.Constraint("Coincident", 37, 1, 38, 1))
sketch2.addConstraint(Sketcher.Constraint("Coincident", 38, 2, 39, 1))
sketch2.addConstraint(Sketcher.Constraint("Coincident", 39, 2, 40, 1))
sketch2.addConstraint(Sketcher.Constraint("Coincident", 40, 2, 41, 2))
sketch2.addConstraint(Sketcher.Constraint("Coincident", 41, 1, 42, 1))
sketch2.addConstraint(Sketcher.Constraint("Coincident", 42, 2, 43, 1))
sketch2.addConstraint(Sketcher.Constraint("Coincident", 43, 2, 44, 1))
sketch2.addConstraint(Sketcher.Constraint("Coincident", 44, 2, 45, 2))
sketch2.addConstraint(Sketcher.Constraint("Coincident", 45, 1, 46, 1))
sketch2.addConstraint(Sketcher.Constraint("Coincident", 46, 2, 47, 1))
sketch2.addConstraint(Sketcher.Constraint("Coincident", 47, 2, 48, 1))
sketch2.addConstraint(Sketcher.Constraint("Coincident", 48, 2, 1, 2))
sketch2.addConstraint(Sketcher.Constraint("Vertical", 2))
sketch2.addConstraint(Sketcher.Constraint("Horizontal", 3))
sketch2.addConstraint(Sketcher.Constraint("Vertical", 4))
sketch2.addConstraint(Sketcher.Constraint("Horizontal", 14))
sketch2.addConstraint(Sketcher.Constraint("Vertical", 15))
sketch2.addConstraint(Sketcher.Constraint("Horizontal", 16))
sketch2.addConstraint(Sketcher.Constraint("Vertical", 26))
sketch2.addConstraint(Sketcher.Constraint("Horizontal", 27))
sketch2.addConstraint(Sketcher.Constraint("Vertical", 28))
sketch2.addConstraint(Sketcher.Constraint("Horizontal", 38))
sketch2.addConstraint(Sketcher.Constraint("Vertical", 39))
sketch2.addConstraint(Sketcher.Constraint("Horizontal", 40))
sketch2.addConstraint(Sketcher.Constraint("Coincident", 0, 3, -1, 1))
sketch2.addConstraint(Sketcher.Constraint("Coincident", 1, 3, -1, 1))
sketch2.addConstraint(Sketcher.Constraint("Coincident", 5, 3, -1, 1))
sketch2.addConstraint(Sketcher.Constraint("Coincident", 9, 3, -1, 1))
sketch2.addConstraint(Sketcher.Constraint("Coincident", 13, 3, -1, 1))
sketch2.addConstraint(Sketcher.Constraint("Coincident", 17, 3, -1, 1))
sketch2.addConstraint(Sketcher.Constraint("Coincident", 21, 3, -1, 1))
sketch2.addConstraint(Sketcher.Constraint("Coincident", 25, 3, -1, 1))
sketch2.addConstraint(Sketcher.Constraint("Coincident", 29, 3, -1, 1))
sketch2.addConstraint(Sketcher.Constraint("Coincident", 33, 3, -1, 1))
sketch2.addConstraint(Sketcher.Constraint("Coincident", 37, 3, -1, 1))
sketch2.addConstraint(Sketcher.Constraint("Coincident", 41, 3, -1, 1))
sketch2.addConstraint(Sketcher.Constraint("Coincident", 45, 3, -1, 1))
sketch2.addConstraint(Sketcher.Constraint("Equal", 1, 5))
sketch2.addConstraint(Sketcher.Constraint("Equal", 5, 9))
sketch2.addConstraint(Sketcher.Constraint("Equal", 9, 13))
sketch2.addConstraint(Sketcher.Constraint("Equal", 13, 17))
sketch2.addConstraint(Sketcher.Constraint("Equal", 17, 21))
sketch2.addConstraint(Sketcher.Constraint("Equal", 21, 25))
sketch2.addConstraint(Sketcher.Constraint("Equal", 25, 29))
sketch2.addConstraint(Sketcher.Constraint("Equal", 29, 33))
sketch2.addConstraint(Sketcher.Constraint("Equal", 33, 37))
sketch2.addConstraint(Sketcher.Constraint("Equal", 37, 41))
sketch2.addConstraint(Sketcher.Constraint("Equal", 41, 45))
sketch2.addConstraint(Sketcher.Constraint("Symmetric", 2, 2, 26, 2, -1, 1))
sketch2.addConstraint(Sketcher.Constraint("Symmetric", 6, 2, 30, 2, -1, 1))
sketch2.addConstraint(Sketcher.Constraint("Symmetric", 7, 2, 31, 2, -1, 1))
sketch2.addConstraint(Sketcher.Constraint("Symmetric", 10, 2, 34, 2, -1, 1))
sketch2.addConstraint(Sketcher.Constraint("Symmetric", 11, 2, 35, 2, -1, 1))
sketch2.addConstraint(Sketcher.Constraint("Symmetric", 14, 2, 38, 2, -1, 1))
sketch2.addConstraint(Sketcher.Constraint("Symmetric", 18, 2, 42, 2, -1, 1))
sketch2.addConstraint(Sketcher.Constraint("Symmetric", 19, 2, 43, 2, -1, 1))
sketch2.addConstraint(Sketcher.Constraint("Symmetric", 22, 2, 46, 2, -1, 1))
sketch2.addConstraint(Sketcher.Constraint("Symmetric", 23, 2, 47, 2, -1, 1))
sketch2.addConstraint(Sketcher.Constraint("Symmetric", 23, 2, 30, 2, -2))
sketch2.addConstraint(Sketcher.Constraint("Symmetric", 22, 2, 31, 2, -2))
sketch2.addConstraint(Sketcher.Constraint("Symmetric", 19, 2, 34, 2, -2))
sketch2.addConstraint(Sketcher.Constraint("Symmetric", 18, 2, 35, 2, -2))
sketch2.addConstraint(Sketcher.Constraint("Perpendicular", 6, 7))
sketch2.addConstraint(Sketcher.Constraint("Perpendicular", 7, 8))
sketch2.addConstraint(Sketcher.Constraint("Perpendicular", 10, 11))
sketch2.addConstraint(Sketcher.Constraint("Perpendicular", 11, 12))
sketch2.addConstraint(Sketcher.Constraint("Perpendicular", 8, 18))
sketch2.addConstraint(Sketcher.Constraint("Perpendicular", 18, 19))
sketch2.addConstraint(Sketcher.Constraint("Perpendicular", 19, 20))
sketch2.addConstraint(Sketcher.Constraint("Perpendicular", 12, 22))
sketch2.addConstraint(Sketcher.Constraint("Perpendicular", 23, 24))
sketch2.addConstraint(Sketcher.Constraint("Perpendicular", 20, 30))
sketch2.addConstraint(Sketcher.Constraint("Perpendicular", 31, 32))
sketch2.addConstraint(Sketcher.Constraint("Perpendicular", 24, 34))
sketch2.addConstraint(Sketcher.Constraint("Perpendicular", 35, 36))
sketch2.addConstraint(Sketcher.Constraint("Perpendicular", 32, 42))
sketch2.addConstraint(Sketcher.Constraint("Perpendicular", 43, 44))
sketch2.addConstraint(Sketcher.Constraint("Perpendicular", 36, 46))
sketch2.addConstraint(Sketcher.Constraint("Perpendicular", 47, 48))
sketch2.addConstraint(Sketcher.Constraint("Horizontal", 1, 1, 4, 2))
sketch2.addConstraint(Sketcher.Constraint("Horizontal", 25, 1, 28, 2))
sketch2.addConstraint(Sketcher.Constraint("Horizontal", 16, 2, 37, 1))
sketch2.addConstraint(Sketcher.Constraint("Horizontal", 14, 2, 39, 2))
sketch2.addConstraint(Sketcher.Constraint("Equal", 40, 2))
sketch2.addConstraint(Sketcher.Constraint("Equal", 27, 15))
sketch2.addConstraint(Sketcher.Constraint("Equal", 6, 8))
sketch2.addConstraint(Sketcher.Constraint("Equal", 8, 10))
sketch2.addConstraint(Sketcher.Constraint("Equal", 7, 11))
sketch2.addConstraint(Sketcher.Constraint("Equal", 10, 12))
sketch2.addConstraint(Sketcher.Constraint("Diameter", 0, 130.0))
sketch2.addConstraint(Sketcher.Constraint("Radius", 1, 45.0))
sketch2.addConstraint(Sketcher.Constraint("DistanceX", 3, 1, 3, 2, 9.0))
sketch2.addConstraint(Sketcher.Constraint("DistanceX", 14, 2, 14, 1, 5.0))
sketch2.addConstraint(Sketcher.Constraint("Angle", 6, Q("-120 deg")))
sketch2.addConstraint(Sketcher.Constraint("Distance", 6, 5.0))
sketch2.addConstraint(Sketcher.Constraint("Distance", 7, 9.0))
sketch2.setExpression("Constraints[125]", "Params.sketch2_diameter")
sketch2.setExpression("Constraints[126]", "Params.sketch2_radius")
sketch2.setExpression("Constraints[127]", "Params.sketch2_width")
sketch2.setExpression("Constraints[128]", "Params.sketch2_width2")
sketch2.setExpression("Constraints[130]", "Params.sketch2_length")
pad2 = body.newObject("PartDesign::Pad", "Pad001")
pad2.Profile = sketch2
pad2.setExpression("Length", "Params.pad2_length")

sketch3 = body.newObject("Sketcher::SketchObject", "Sketch002")
sketch3.AttachmentSupport = (doc.getObject("XY_Plane"), [""])
sketch3.MapMode = "FlatFace"
sketch3.addGeometry(Part.Circle(V(0, 0, 0), V(0, 0, 1), 55), False)
sketch3.addGeometry(Part.Circle(V(0, 0, 0), V(0, 0, 1), 30), False)
sketch3.addConstraint(Sketcher.Constraint("Coincident", 0, 3, -1, 1))
sketch3.addConstraint(Sketcher.Constraint("Coincident", 1, 3, -1, 1))
sketch3.addConstraint(Sketcher.Constraint("Diameter", 0, 110.0))
sketch3.addConstraint(Sketcher.Constraint("Diameter", 1, 60.0))
sketch3.setExpression("Constraints[2]", "Params.sketch3_diameter")
sketch3.setExpression("Constraints[3]", "Params.sketch3_diameter2")
pocket1 = body.newObject("PartDesign::Pocket", "Pocket")
pocket1.Profile = sketch3
pocket1.setExpression("Length", "Params.pocket1_length")
pocket1.Reversed = True

sketch4 = body.newObject("Sketcher::SketchObject", "Sketch003")
sketch4.AttachmentSupport = (doc.getObject("XY_Plane"), [""])
sketch4.MapMode = "FlatFace"
sketch4.AttachmentOffset = App.Placement(V(0, 0, 20), App.Rotation())
sketch4.addGeometry(Part.Circle(V(0, 0, 0), V(0, 0, 1), 55), False)
sketch4.addGeometry(Part.Circle(V(0, 0, 0), V(0, 0, 1), 30), False)
sketch4.addConstraint(Sketcher.Constraint("Coincident", 0, 3, -1, 1))
sketch4.addConstraint(Sketcher.Constraint("Coincident", 1, 3, -1, 1))
sketch4.addConstraint(Sketcher.Constraint("Diameter", 0, 110.0))
sketch4.addConstraint(Sketcher.Constraint("Diameter", 1, 60.0))
sketch4.setExpression("Constraints[2]", "Params.sketch4_diameter")
sketch4.setExpression("Constraints[3]", "Params.sketch4_diameter2")
pad3 = body.newObject("PartDesign::Pad", "Pad002")
pad3.Profile = sketch4
pad3.setExpression("Length", "Params.pad3_length")
doc.recompute()

fillet = body.newObject("PartDesign::Fillet", "Fillet")
fillet.Base = (pad3, edges_at(pad3, [(-65, 0, 20)]))
fillet.setExpression("Radius", "Params.fillet_radius")
doc.recompute()

fillet2 = body.newObject("PartDesign::Fillet", "Fillet001")
fillet2.Base = (fillet, edges_at(fillet, [(30, 0, 30), (30, 0, 20)]))
fillet2.setExpression("Radius", "Params.fillet2_radius")
doc.recompute()

fillet3 = body.newObject("PartDesign::Fillet", "Fillet002")
fillet3.Base = (fillet2, edges_at(fillet2, [(55, 0, 20)]))
fillet3.setExpression("Radius", "Params.fillet3_radius")

doc.recompute()
